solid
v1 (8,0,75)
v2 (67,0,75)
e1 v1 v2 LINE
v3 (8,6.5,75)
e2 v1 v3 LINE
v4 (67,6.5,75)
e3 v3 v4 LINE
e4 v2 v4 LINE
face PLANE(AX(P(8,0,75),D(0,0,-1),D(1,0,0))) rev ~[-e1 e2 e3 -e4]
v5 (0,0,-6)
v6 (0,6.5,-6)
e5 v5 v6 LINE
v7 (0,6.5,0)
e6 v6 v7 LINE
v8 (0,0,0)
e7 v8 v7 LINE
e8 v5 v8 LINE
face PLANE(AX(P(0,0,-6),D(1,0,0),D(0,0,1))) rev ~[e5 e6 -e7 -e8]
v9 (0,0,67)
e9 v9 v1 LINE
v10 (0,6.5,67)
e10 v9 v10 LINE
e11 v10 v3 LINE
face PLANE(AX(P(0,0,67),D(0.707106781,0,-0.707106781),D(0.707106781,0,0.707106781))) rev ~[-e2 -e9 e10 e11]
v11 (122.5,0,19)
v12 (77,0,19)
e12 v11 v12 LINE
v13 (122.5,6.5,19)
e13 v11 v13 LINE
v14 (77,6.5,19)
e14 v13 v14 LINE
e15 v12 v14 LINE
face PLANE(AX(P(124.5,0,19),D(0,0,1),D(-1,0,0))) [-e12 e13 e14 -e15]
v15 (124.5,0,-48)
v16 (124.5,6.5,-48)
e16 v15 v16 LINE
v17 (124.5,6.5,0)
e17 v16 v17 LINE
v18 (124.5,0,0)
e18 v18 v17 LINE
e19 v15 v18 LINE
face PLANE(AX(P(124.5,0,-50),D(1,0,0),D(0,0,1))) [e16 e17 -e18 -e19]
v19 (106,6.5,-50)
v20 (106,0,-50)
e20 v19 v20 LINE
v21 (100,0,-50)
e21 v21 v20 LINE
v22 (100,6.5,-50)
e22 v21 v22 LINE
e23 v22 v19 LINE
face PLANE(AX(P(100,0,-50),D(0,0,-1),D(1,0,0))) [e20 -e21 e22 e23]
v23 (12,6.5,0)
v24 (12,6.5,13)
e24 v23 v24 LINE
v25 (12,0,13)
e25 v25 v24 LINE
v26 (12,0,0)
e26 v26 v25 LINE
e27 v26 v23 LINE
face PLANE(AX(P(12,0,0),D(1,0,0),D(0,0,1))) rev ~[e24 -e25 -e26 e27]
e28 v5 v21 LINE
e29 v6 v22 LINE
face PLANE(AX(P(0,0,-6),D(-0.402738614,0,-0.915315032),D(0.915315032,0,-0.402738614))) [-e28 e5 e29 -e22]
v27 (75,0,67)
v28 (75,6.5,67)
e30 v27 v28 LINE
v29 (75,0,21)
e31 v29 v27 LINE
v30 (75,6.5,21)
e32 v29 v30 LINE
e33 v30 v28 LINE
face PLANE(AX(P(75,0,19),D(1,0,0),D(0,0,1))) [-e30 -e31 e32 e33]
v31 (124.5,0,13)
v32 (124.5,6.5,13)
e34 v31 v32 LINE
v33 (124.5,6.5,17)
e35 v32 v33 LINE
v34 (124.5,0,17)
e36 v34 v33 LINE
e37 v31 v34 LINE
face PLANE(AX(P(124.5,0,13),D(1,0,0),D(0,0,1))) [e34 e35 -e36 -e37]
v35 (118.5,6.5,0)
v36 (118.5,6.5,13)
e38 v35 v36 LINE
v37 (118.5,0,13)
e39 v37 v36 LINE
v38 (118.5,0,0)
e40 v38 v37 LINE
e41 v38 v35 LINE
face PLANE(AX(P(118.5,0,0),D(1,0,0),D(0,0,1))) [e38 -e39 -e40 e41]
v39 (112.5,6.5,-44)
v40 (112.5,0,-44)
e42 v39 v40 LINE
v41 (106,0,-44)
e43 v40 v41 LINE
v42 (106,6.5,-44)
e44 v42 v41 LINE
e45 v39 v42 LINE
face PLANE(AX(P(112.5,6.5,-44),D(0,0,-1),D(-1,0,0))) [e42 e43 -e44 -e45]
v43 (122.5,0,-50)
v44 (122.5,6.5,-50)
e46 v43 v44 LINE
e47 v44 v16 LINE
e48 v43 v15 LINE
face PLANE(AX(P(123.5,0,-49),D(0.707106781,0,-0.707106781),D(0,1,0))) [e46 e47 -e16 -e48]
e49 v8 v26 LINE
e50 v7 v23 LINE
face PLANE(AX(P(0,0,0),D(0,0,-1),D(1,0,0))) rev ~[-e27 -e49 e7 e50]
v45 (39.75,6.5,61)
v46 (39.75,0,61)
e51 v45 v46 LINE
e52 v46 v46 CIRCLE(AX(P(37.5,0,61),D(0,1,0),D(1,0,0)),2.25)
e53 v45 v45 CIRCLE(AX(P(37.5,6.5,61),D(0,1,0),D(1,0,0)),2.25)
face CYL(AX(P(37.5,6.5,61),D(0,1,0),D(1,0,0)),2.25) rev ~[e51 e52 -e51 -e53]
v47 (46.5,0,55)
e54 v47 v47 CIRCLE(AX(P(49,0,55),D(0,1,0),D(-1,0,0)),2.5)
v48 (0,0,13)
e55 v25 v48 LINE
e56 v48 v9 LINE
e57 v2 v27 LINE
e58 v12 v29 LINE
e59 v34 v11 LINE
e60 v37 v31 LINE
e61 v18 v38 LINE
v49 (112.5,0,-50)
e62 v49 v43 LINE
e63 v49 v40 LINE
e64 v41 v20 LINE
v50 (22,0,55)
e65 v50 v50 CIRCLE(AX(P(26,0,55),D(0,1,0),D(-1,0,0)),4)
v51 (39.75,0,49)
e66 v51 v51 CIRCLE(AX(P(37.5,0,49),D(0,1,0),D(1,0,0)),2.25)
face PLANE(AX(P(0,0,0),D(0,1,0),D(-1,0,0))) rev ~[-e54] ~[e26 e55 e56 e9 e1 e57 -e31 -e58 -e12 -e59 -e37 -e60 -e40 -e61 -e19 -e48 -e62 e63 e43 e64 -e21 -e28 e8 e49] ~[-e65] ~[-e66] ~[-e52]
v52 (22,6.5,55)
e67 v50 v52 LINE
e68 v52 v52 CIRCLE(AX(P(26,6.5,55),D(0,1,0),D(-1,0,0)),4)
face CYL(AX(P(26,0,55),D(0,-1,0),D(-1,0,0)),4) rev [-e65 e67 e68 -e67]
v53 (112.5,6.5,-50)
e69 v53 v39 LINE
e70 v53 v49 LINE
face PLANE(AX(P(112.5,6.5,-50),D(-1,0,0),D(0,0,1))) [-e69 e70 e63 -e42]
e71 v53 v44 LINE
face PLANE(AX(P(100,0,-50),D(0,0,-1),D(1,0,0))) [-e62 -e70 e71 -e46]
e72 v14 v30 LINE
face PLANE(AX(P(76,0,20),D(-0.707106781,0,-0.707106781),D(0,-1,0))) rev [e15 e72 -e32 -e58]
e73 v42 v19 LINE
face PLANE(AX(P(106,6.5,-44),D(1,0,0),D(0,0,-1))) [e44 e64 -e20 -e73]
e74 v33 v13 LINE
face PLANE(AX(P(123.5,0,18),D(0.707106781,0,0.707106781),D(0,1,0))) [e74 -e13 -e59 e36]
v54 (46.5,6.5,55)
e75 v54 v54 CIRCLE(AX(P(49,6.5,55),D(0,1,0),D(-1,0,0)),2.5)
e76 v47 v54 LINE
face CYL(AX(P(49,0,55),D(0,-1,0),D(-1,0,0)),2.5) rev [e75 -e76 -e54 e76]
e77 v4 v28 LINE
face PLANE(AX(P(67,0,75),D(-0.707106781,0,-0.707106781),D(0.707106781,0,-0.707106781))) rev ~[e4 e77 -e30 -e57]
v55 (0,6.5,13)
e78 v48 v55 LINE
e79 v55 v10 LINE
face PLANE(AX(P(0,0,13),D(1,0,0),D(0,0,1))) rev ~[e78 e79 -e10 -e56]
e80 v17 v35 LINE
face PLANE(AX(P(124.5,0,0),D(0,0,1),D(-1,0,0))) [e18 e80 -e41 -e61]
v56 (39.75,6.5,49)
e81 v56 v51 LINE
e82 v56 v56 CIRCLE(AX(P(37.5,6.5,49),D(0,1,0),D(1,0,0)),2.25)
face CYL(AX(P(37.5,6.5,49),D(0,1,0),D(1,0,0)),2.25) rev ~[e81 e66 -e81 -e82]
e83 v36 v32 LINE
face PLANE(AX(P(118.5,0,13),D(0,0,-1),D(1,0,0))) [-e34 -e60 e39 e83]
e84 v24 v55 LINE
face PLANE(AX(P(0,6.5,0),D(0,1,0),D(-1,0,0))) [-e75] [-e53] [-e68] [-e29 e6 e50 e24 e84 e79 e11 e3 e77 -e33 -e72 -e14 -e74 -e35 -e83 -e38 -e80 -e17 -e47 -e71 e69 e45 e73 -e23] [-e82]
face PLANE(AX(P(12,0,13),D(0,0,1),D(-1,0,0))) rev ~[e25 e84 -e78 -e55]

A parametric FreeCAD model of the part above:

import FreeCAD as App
import Part
import Sketcher


def edges_at(feature, points):
    """Names of the edges that pass closest to the given points."""
    edges = feature.Shape.Edges
    near = lambda p: min(range(len(edges)), key=lambda i: edges[i].distToShape(Part.Vertex(*p))[0])
    return sorted({f"Edge{near(p) + 1}" for p in points})


def add_polygon(sketch, points):
    """Adds a closed chain of lines whose ends are joined by coincident constraints."""
    first, n = sketch.GeometryCount, len(points)
    for a, b in zip(points, points[1:] + points[:1]):
        sketch.addGeometry(Part.LineSegment(App.Vector(*a, 0), App.Vector(*b, 0)), False)
    for i in range(n):
        sketch.addConstraint(Sketcher.Constraint("Coincident", first + i, 2, first + (i + 1) % n, 1))

doc = App.newDocument("Part")
body = doc.addObject("PartDesign::Body", "Body")

# Sketch on XZ plane
sketch1 = body.newObject("Sketcher::SketchObject", "Sketch")
sketch1.AttachmentSupport = (doc.getObject("XZ_Plane"), [""])
sketch1.MapMode = "FlatFace"
add_polygon(sketch1, [(100, -50), (0, -6), (0, 0), (12, 0), (12, 13), (0, 13), (0, 67), (8, 75), (67, 75), (75, 67), (75, 19), (124.5, 19), (124.5, 13), (118.5, 13), (118.5, 0), (124.5, 0), (124.5, -50)])  # lines 0-16
sketch1.addGeometry(Part.Circle(App.Vector(49, 55, 0), App.Vector(0, 0, 1), 2.5), False)  # 17
sketch1.addGeometry(Part.Circle(App.Vector(26, 55, 0), App.Vector(0, 0, 1), 4), False)  # 18
sketch1.addConstraint(Sketcher.Constraint("Vertical", 1))
sketch1.addConstraint(Sketcher.Constraint("Horizontal", 2))
sketch1.addConstraint(Sketcher.Constraint("Vertical", 3))
sketch1.addConstraint(Sketcher.Constraint("Horizontal", 4))
sketch1.addConstraint(Sketcher.Constraint("Vertical", 5))
sketch1.addConstraint(Sketcher.Constraint("Horizontal", 7))
sketch1.addConstraint(Sketcher.Constraint("Vertical", 9))
sketch1.addConstraint(Sketcher.Constraint("Horizontal", 10))
sketch1.addConstraint(Sketcher.Constraint("Vertical", 11))
sketch1.addConstraint(Sketcher.Constraint("Horizontal", 12))
sketch1.addConstraint(Sketcher.Constraint("Vertical", 13))
sketch1.addConstraint(Sketcher.Constraint("Horizontal", 14))
sketch1.addConstraint(Sketcher.Constraint("Vertical", 15))
sketch1.addConstraint(Sketcher.Constraint("Horizontal", 16))
sketch1.addConstraint(Sketcher.Constraint("Coincident", 1, 2, -1, 1))
sketch1.addConstraint(Sketcher.Constraint("PointOnObject", 4, 2, -2))
sketch1.addConstraint(Sketcher.Constraint("PointOnObject", 13, 2, -1))
sketch1.addConstraint(Sketcher.Constraint("Perpendicular", 6, 8))
sketch1.addConstraint(Sketcher.Constraint("Horizontal", 17, 3, 18, 3))
sketch1.addConstraint(Sketcher.Constraint("Horizontal", 5, 2, 8, 2))
sketch1.addConstraint(Sketcher.Constraint("Horizontal", 4, 2, 11, 2))
sketch1.addConstraint(Sketcher.Constraint("Vertical", 11, 2, 14, 2))
sketch1.addConstraint(Sketcher.Constraint("Equal", 14, 1))
sketch1.addConstraint(Sketcher.Constraint("Equal", 1, 11))
sketch1.addConstraint(Sketcher.Constraint("Equal", 6, 8))
sketch1.addConstraint(Sketcher.Constraint("Diameter", 17, 5.0))
sketch1.addConstraint(Sketcher.Constraint("Diameter", 18, 8.0))
sketch1.addConstraint(Sketcher.Constraint("DistanceX", 2, 1, 2, 2, 12.0))
sketch1.addConstraint(Sketcher.Constraint("DistanceX", 12, 2, 12, 1, 6.0))
sketch1.addConstraint(Sketcher.Constraint("DistanceY", 3, 1, 3, 2, 13.0))
sketch1.addConstraint(Sketcher.Constraint("DistanceY", 15, 2, 15, 1, 50.0))
sketch1.addConstraint(Sketcher.Constraint("DistanceX", -1, 1, 18, 3, 26.0))
sketch1.addConstraint(Sketcher.Constraint("DistanceX", -1, 1, 6, 2, 8.0))
sketch1.addConstraint(Sketcher.Constraint("DistanceY", -1, 1, 6, 2, 75.0))
sketch1.addConstraint(Sketcher.Constraint("DistanceX", -1, 1, 8, 2, 75.0))
sketch1.addConstraint(Sketcher.Constraint("DistanceX", 18, 3, 17, 3, 23.0))
sketch1.addConstraint(Sketcher.Constraint("DistanceY", 3, 2, 18, 3, 42.0))
sketch1.addConstraint(Sketcher.Constraint("DistanceX", 10, 1, 10, 2, 49.5))
sketch1.addConstraint(Sketcher.Constraint("DistanceX", 16, 2, 16, 1, 24.5))
pad1 = body.newObject("PartDesign::Pad", "Pad")
pad1.Profile = sketch1
pad1.Length = 6.5
pad1.Reversed = True

# Sketch on XZ plane
sketch2 = body.newObject("Sketcher::SketchObject", "Sketch001")
sketch2.AttachmentSupport = (doc.getObject("XZ_Plane"), [""])
sketch2.MapMode = "FlatFace"
sketch2.AttachmentOffset = App.Placement(App.Vector(0, 0, -6.5), App.Rotation())
add_polygon(sketch2, [(112.5, -44), (112.5, -50), (106, -50), (106, -44)])  # lines 0-3
sketch2.addConstraint(Sketcher.Constraint("Vertical", 0))
sketch2.addConstraint(Sketcher.Constraint("Horizontal", 1))
sketch2.addConstraint(Sketcher.Constraint("Vertical", 2))
sketch2.addConstraint(Sketcher.Constraint("Horizontal", 3))
sketch2.addConstraint(Sketcher.Constraint("DistanceY", 0, 2, 0, 1, 6.0))
sketch2.addConstraint(Sketcher.Constraint("DistanceX", 1, 2, 1, 1, 6.5))
sketch2.addConstraint(Sketcher.Constraint("DistanceY", 0, 2, -1, 1, 50.0))
sketch2.addConstraint(Sketcher.Constraint("DistanceX", -1, 1, 1, 2, 106.0))
pocket1 = body.newObject("PartDesign::Pocket", "Pocket")
pocket1.Profile = sketch2
pocket1.Type = "ThroughAll"
pocket1.Reversed = True
doc.recompute()

chamfer = body.newObject("PartDesign::Chamfer", "Chamfer")
chamfer.Base = (pocket1, edges_at(pocket1, [(75, 3.25, 19), (124.5, 3.25, 19), (124.5, 3.25, -50)]))
chamfer.Size = 2

# Sketch on XZ plane
sketch3 = body.newObject("Sketcher::SketchObject", "Sketch002")
sketch3.AttachmentSupport = (doc.getObject("XZ_Plane"), [""])
sketch3.MapMode = "FlatFace"
sketch3.AttachmentOffset = App.Placement(App.Vector(0, 0, -6.5), App.Rotation())
sketch3.addGeometry(Part.Circle(App.Vector(37.5, 49, 0), App.Vector(0, 0, 1), 2.25), False)
sketch3.addGeometry(Part.Circle(App.Vector(37.5, 61, 0), App.Vector(0, 0, 1), 2.25), False)
sketch3.addConstraint(Sketcher.Constraint("Equal", 0, 1))
sketch3.addConstraint(Sketcher.Constraint("Vertical", 0, 3, 1, 3))
sketch3.addConstraint(Sketcher.Constraint("Diameter", 0, 4.5))
sketch3.addConstraint(Sketcher.Constraint("DistanceY", 0, 3, 1, 3, 12.0))
sketch3.addConstraint(Sketcher.Constraint("DistanceY", -1, 1, 0, 3, 49.0))
sketch3.addConstraint(Sketcher.Constraint("DistanceX", -1, 1, 0, 3, 37.5))
pocket2 = body.newObject("PartDesign::Pocket", "Pocket001")
pocket2.Profile = sketch3
pocket2.Type = "ThroughAll"
pocket2.Reversed = True

doc.recompute()
